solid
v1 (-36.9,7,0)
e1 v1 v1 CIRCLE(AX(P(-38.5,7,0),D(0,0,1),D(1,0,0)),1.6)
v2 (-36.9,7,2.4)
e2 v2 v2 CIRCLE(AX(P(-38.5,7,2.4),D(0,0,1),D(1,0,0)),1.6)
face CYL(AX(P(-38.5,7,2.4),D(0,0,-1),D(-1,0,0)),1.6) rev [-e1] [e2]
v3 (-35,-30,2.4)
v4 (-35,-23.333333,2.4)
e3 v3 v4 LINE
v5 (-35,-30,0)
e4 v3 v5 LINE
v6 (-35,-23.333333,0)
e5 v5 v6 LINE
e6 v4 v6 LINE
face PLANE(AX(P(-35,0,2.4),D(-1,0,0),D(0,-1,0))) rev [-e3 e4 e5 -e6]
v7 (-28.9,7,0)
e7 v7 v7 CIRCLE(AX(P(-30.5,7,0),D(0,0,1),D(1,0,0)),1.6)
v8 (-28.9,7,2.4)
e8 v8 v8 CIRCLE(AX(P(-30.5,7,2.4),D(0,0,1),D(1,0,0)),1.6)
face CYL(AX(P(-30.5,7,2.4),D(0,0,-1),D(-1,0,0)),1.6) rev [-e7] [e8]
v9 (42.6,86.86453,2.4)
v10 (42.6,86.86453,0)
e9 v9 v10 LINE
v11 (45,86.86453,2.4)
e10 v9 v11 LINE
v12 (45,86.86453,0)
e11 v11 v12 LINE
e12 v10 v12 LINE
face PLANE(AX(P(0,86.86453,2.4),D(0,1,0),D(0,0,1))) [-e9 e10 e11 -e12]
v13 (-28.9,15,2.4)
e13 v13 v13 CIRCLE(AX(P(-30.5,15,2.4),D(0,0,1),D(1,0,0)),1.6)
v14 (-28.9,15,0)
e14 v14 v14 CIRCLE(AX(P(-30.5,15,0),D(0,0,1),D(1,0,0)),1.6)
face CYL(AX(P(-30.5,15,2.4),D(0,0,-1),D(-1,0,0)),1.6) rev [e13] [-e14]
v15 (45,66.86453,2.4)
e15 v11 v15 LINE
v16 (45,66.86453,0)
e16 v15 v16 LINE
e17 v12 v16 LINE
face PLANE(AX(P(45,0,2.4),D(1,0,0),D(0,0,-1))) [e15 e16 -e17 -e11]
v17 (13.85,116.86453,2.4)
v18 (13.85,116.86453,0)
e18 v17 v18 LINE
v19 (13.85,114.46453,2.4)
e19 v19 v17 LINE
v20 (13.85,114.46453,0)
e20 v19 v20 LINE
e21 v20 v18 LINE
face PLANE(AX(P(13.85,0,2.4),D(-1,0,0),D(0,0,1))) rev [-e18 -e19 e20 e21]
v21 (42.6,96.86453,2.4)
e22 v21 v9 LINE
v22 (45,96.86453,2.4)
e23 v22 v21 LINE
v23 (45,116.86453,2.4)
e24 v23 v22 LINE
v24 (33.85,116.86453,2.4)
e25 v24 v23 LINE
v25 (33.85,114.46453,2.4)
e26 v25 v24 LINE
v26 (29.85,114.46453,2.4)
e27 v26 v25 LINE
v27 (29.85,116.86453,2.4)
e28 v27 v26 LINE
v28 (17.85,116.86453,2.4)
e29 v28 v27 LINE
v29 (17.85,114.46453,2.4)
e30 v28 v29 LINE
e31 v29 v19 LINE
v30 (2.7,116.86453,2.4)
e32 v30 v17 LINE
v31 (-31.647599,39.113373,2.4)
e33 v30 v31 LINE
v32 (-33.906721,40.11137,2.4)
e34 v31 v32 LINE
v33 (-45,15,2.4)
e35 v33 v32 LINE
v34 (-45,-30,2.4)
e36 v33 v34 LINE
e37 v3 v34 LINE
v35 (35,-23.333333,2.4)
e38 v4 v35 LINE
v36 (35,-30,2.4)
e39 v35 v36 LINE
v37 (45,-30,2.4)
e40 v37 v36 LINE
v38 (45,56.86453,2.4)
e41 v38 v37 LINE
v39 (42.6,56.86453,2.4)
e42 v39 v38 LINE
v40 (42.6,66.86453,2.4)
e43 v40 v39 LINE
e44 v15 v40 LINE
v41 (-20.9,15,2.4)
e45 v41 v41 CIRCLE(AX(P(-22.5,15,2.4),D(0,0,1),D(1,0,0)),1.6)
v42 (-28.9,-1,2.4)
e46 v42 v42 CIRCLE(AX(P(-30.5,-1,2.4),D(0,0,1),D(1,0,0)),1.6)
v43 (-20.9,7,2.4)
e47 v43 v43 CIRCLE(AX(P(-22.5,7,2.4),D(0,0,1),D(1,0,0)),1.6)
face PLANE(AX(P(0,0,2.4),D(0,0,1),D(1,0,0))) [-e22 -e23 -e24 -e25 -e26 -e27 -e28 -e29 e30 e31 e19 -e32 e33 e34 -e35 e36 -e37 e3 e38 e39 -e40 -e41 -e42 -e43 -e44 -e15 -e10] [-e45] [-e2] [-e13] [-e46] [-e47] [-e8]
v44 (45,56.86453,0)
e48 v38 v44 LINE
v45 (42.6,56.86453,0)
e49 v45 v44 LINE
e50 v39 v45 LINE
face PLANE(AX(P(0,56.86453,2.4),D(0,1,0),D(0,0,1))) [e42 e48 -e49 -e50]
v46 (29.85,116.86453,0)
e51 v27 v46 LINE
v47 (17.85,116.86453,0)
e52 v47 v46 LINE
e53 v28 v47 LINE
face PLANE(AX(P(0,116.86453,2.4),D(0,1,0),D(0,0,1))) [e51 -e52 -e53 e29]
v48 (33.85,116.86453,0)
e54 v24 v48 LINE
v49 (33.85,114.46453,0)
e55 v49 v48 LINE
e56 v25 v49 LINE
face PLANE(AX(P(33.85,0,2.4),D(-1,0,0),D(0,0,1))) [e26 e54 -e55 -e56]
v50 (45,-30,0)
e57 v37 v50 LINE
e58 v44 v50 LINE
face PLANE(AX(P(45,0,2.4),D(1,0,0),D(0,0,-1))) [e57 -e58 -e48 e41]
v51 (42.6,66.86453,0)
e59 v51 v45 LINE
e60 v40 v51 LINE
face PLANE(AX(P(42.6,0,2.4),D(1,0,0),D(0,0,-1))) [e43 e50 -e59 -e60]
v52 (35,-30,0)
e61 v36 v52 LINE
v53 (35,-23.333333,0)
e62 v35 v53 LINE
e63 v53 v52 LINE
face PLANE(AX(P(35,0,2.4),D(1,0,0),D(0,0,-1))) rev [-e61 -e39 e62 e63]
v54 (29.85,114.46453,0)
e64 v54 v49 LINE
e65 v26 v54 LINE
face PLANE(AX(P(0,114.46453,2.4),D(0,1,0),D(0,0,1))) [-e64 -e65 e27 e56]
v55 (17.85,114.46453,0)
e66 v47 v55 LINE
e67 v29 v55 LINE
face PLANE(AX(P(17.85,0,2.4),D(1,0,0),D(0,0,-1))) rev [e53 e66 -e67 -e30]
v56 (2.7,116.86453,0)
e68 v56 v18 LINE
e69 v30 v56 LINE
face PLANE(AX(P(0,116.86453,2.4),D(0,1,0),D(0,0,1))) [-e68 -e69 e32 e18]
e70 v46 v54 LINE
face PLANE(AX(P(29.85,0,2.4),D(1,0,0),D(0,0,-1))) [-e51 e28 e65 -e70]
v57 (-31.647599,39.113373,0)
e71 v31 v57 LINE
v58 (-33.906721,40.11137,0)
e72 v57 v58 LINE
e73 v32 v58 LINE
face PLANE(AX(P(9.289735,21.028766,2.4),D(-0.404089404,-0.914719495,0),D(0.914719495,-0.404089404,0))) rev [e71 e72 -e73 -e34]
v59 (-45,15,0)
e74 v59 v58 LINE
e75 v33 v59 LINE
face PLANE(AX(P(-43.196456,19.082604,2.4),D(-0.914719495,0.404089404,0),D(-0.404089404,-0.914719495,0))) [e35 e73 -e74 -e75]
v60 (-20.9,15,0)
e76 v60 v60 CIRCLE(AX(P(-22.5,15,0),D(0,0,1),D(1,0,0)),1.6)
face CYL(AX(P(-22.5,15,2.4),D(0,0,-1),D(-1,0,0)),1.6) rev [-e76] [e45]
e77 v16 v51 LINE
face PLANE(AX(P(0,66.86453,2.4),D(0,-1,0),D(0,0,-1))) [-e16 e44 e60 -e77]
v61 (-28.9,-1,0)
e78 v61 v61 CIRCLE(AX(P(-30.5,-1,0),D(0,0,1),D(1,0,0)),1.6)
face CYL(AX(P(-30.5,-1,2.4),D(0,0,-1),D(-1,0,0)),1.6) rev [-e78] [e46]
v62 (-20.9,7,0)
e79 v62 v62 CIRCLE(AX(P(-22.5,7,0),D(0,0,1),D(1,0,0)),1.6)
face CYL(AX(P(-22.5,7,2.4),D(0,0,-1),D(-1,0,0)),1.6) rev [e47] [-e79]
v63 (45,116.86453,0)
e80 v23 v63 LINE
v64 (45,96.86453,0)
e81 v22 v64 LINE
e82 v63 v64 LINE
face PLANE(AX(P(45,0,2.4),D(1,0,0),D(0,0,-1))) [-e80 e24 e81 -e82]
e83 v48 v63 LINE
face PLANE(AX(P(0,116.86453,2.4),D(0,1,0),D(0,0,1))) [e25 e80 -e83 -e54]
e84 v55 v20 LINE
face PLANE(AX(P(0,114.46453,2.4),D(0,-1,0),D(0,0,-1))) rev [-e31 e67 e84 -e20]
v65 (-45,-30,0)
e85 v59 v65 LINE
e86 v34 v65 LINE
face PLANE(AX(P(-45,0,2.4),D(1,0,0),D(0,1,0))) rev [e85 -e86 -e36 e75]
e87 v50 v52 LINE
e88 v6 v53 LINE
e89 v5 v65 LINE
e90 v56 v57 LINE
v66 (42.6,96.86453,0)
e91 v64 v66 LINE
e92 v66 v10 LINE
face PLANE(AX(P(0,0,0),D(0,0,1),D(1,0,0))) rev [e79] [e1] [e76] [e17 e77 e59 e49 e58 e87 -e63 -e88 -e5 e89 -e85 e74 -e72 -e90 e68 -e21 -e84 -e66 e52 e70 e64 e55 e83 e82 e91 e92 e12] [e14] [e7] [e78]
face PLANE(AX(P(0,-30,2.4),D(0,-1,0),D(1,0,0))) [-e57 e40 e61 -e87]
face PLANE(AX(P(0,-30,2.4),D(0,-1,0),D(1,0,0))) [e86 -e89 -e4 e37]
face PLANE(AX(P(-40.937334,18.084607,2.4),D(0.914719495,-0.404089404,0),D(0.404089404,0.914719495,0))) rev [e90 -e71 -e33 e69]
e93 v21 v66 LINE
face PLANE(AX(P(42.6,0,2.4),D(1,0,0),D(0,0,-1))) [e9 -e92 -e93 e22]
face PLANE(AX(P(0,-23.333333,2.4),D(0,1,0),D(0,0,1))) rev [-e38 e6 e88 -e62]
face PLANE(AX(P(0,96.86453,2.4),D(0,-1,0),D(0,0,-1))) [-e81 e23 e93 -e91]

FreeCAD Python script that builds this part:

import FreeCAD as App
import Part
import Sketcher
from FreeCAD import Vector
Q = App.Units.Quantity

doc = App.newDocument("Part")
body = doc.addObject("PartDesign::Body", "Body")

sketch1 = body.newObject("Sketcher::SketchObject", "Sketch")
sketch1.AttachmentSupport = (doc.getObject("XY_Plane"), [""])
sketch1.MapMode = "FlatFace"
sketch1.addGeometry([
    Part.LineSegment(Vector(-45, 15, 0), Vector(-45, -30, 0)),
    Part.LineSegment(Vector(-45, -30, 0), Vector(-35, -30, 0)),
    Part.LineSegment(Vector(-35, -30, 0), Vector(-35, -23.3, 0)),
    Part.LineSegment(Vector(-35, -23.3, 0), Vector(35, -23.3, 0)),
    Part.LineSegment(Vector(35, -23.3, 0), Vector(35, -30, 0)),
    Part.LineSegment(Vector(35, -30, 0), Vector(45, -30, 0)),
    Part.LineSegment(Vector(45, -30, 0), Vector(45, 56.9, 0)),
    Part.LineSegment(Vector(45, 56.9, 0), Vector(42.6, 56.9, 0)),
    Part.LineSegment(Vector(42.6, 56.9, 0), Vector(42.6, 66.9, 0)),
    Part.LineSegment(Vector(42.6, 66.9, 0), Vector(45, 66.9, 0)),
    Part.LineSegment(Vector(45, 66.9, 0), Vector(45, 86.9, 0)),
    Part.LineSegment(Vector(45, 86.9, 0), Vector(42.6, 86.9, 0)),
    Part.LineSegment(Vector(42.6, 86.9, 0), Vector(42.6, 96.9, 0)),
    Part.LineSegment(Vector(42.6, 96.9, 0), Vector(45, 96.9, 0)),
    Part.LineSegment(Vector(45, 96.9, 0), Vector(45, 116.9, 0)),
    Part.LineSegment(Vector(45, 116.9, 0), Vector(33.9, 116.9, 0)),
    Part.LineSegment(Vector(33.9, 116.9, 0), Vector(33.9, 114.5, 0)),
    Part.LineSegment(Vector(33.9, 114.5, 0), Vector(29.9, 114.5, 0)),
    Part.LineSegment(Vector(29.9, 114.5, 0), Vector(29.9, 116.9, 0)),
    Part.LineSegment(Vector(29.9, 116.9, 0), Vector(17.9, 116.9, 0)),
    Part.LineSegment(Vector(17.9, 116.9, 0), Vector(17.9, 114.5, 0)),
    Part.LineSegment(Vector(17.9, 114.5, 0), Vector(13.8, 114.5, 0)),
    Part.LineSegment(Vector(13.8, 114.5, 0), Vector(13.8, 116.9, 0)),
    Part.LineSegment(Vector(13.8, 116.9, 0), Vector(2.7, 116.9, 0)),
    Part.LineSegment(Vector(2.7, 116.9, 0), Vector(-31.6, 39.1, 0)),
    Part.LineSegment(Vector(-31.6, 39.1, 0), Vector(-33.9, 40.1, 0)),
    Part.LineSegment(Vector(-33.9, 40.1, 0), Vector(-45, 15, 0)),
    Part.Circle(Vector(-30.5, -1, 0), Vector(0, 0, 1), 1.6),
    Part.Circle(Vector(-38.5, 7, 0), Vector(0, 0, 1), 1.6),
    Part.Circle(Vector(-30.5, 7, 0), Vector(0, 0, 1), 1.6),
    Part.Circle(Vector(-22.5, 7, 0), Vector(0, 0, 1), 1.6),
    Part.Circle(Vector(-30.5, 15, 0), Vector(0, 0, 1), 1.6),
    Part.Circle(Vector(-22.5, 15, 0), Vector(0, 0, 1), 1.6),
], False)
sketch1.addConstraint([
    Sketcher.Constraint("Coincident", 0, 2, 1, 1),
    Sketcher.Constraint("Coincident", 1, 2, 2, 1),
    Sketcher.Constraint("Coincident", 2, 2, 3, 1),
    Sketcher.Constraint("Coincident", 3, 2, 4, 1),
    Sketcher.Constraint("Coincident", 4, 2, 5, 1),
    Sketcher.Constraint("Coincident", 5, 2, 6, 1),
    Sketcher.Constraint("Coincident", 6, 2, 7, 1),
    Sketcher.Constraint("Coincident", 7, 2, 8, 1),
    Sketcher.Constraint("Coincident", 8, 2, 9, 1),
    Sketcher.Constraint("Coincident", 9, 2, 10, 1),
    Sketcher.Constraint("Coincident", 10, 2, 11, 1),
    Sketcher.Constraint("Coincident", 11, 2, 12, 1),
    Sketcher.Constraint("Coincident", 12, 2, 13, 1),
    Sketcher.Constraint("Coincident", 13, 2, 14, 1),
    Sketcher.Constraint("Coincident", 14, 2, 15, 1),
    Sketcher.Constraint("Coincident", 15, 2, 16, 1),
    Sketcher.Constraint("Coincident", 16, 2, 17, 1),
    Sketcher.Constraint("Coincident", 17, 2, 18, 1),
    Sketcher.Constraint("Coincident", 18, 2, 19, 1),
    Sketcher.Constraint("Coincident", 19, 2, 20, 1),
    Sketcher.Constraint("Coincident", 20, 2, 21, 1),
    Sketcher.Constraint("Coincident", 21, 2, 22, 1),
    Sketcher.Constraint("Coincident", 22, 2, 23, 1),
    Sketcher.Constraint("Coincident", 23, 2, 24, 1),
    Sketcher.Constraint("Coincident", 24, 2, 25, 1),
    Sketcher.Constraint("Coincident", 25, 2, 26, 1),
    Sketcher.Constraint("Coincident", 26, 2, 0, 1),
    Sketcher.Constraint("Vertical", 0),
    Sketcher.Constraint("Horizontal", 1),
    Sketcher.Constraint("Vertical", 2),
    Sketcher.Constraint("Horizontal", 3),
    Sketcher.Constraint("Vertical", 4),
    Sketcher.Constraint("Horizontal", 5),
    Sketcher.Constraint("Vertical", 6),
    Sketcher.Constraint("Horizontal", 7),
    Sketcher.Constraint("Vertical", 8),
    Sketcher.Constraint("Horizontal", 9),
    Sketcher.Constraint("Vertical", 10),
    Sketcher.Constraint("Horizontal", 11),
    Sketcher.Constraint("Vertical", 12),
    Sketcher.Constraint("Horizontal", 13),
    Sketcher.Constraint("Vertical", 14),
    Sketcher.Constraint("Horizontal", 15),
    Sketcher.Constraint("Vertical", 16),
    Sketcher.Constraint("Horizontal", 17),
    Sketcher.Constraint("Vertical", 18),
    Sketcher.Constraint("Horizontal", 19),
    Sketcher.Constraint("Vertical", 20),
    Sketcher.Constraint("Horizontal", 21),
    Sketcher.Constraint("Vertical", 22),
    Sketcher.Constraint("Horizontal", 23),
    Sketcher.Constraint("Equal", 27, 28),
    Sketcher.Constraint("Equal", 28, 29),
    Sketcher.Constraint("Equal", 29, 30),
    Sketcher.Constraint("Equal", 30, 31),
    Sketcher.Constraint("Equal", 31, 32),
    Sketcher.Constraint("Symmetric", 1, 2, 4, 2, -2),
    Sketcher.Constraint("Perpendicular", 24, 25),
    Sketcher.Constraint("Perpendicular", 25, 26),
    Sketcher.Constraint("Horizontal", 28, 3, 29, 3),
    Sketcher.Constraint("Horizontal", 29, 3, 30, 3),
    Sketcher.Constraint("Horizontal", 31, 3, 32, 3),
    Sketcher.Constraint("Horizontal", 15, 2, 18, 2),
    Sketcher.Constraint("Horizontal", 17, 2, 20, 2),
    Sketcher.Constraint("Horizontal", 19, 2, 22, 2),
    Sketcher.Constraint("Horizontal", 32, 3, 26, 2),
    Sketcher.Constraint("Vertical", 27, 3, 29, 3),
    Sketcher.Constraint("Vertical", 29, 3, 31, 3),
    Sketcher.Constraint("Vertical", 30, 3, 32, 3),
    Sketcher.Constraint("Vertical", 6, 2, 9, 2),
    Sketcher.Constraint("Vertical", 8, 2, 11, 2),
    Sketcher.Constraint("Vertical", 10, 2, 13, 2),
    Sketcher.Constraint("Equal", 1, 5),
    Sketcher.Constraint("Equal", 17, 21),
    Sketcher.Constraint("Equal", 15, 23),
    Sketcher.Constraint("Equal", 5, 8),
    Sketcher.Constraint("Equal", 8, 12),
    Sketcher.Constraint("Equal", 10, 14),
    Sketcher.Constraint("Equal", 13, 16),
    Sketcher.Constraint("Diameter", 27, Q("3.2 mm")),
    Sketcher.Constraint("DistanceX", 1, 1, 1, 2, Q("10 mm")),
    Sketcher.Constraint("DistanceX", 3, 1, 3, 2, Q("70 mm")),
    Sketcher.Constraint("DistanceX", 17, 2, 17, 1, Q("4 mm")),
    Sketcher.Constraint("DistanceX", 19, 2, 19, 1, Q("12 mm")),
    Sketcher.Constraint("DistanceY", 0, 2, 0, 1, Q("45 mm")),
    Sketcher.Constraint("DistanceY", 10, 1, 10, 2, Q("20 mm")),
    Sketcher.Constraint("Distance", 24, Q("85 mm")),
    Sketcher.Constraint("DistanceX", 7, 2, 7, 1, Q("2.4 mm")),
    Sketcher.Constraint("DistanceY", 27, 3, -1, 1, Q("1 mm")),
    Sketcher.Constraint("DistanceY", -1, 1, 28, 3, Q("7 mm")),
    Sketcher.Constraint("DistanceY", -1, 1, 31, 3, Q("15 mm")),
    Sketcher.Constraint("DistanceX", 28, 3, 27, 3, Q("8 mm")),
    Sketcher.Constraint("DistanceX", 29, 3, 30, 3, Q("8 mm")),
    Sketcher.Constraint("DistanceX", 15, 2, 15, 1, Q("11.15 mm")),
    Sketcher.Constraint("DistanceX", 27, 3, -1, 1, Q("30.5 mm")),
    Sketcher.Constraint("DistanceY", 6, 1, 6, 2, Q("86.86453 mm")),
    Sketcher.Constraint("DistanceX", 24, 2, -1, 1, Q("31.647599 mm")),
    Sketcher.Constraint("DistanceY", 2, 1, 2, 2, Q("6.666667 mm")),
])
pad1 = body.newObject("PartDesign::Pad", "Pad")
pad1.Profile = sketch1
pad1.Length = 2.4

doc.recompute()
